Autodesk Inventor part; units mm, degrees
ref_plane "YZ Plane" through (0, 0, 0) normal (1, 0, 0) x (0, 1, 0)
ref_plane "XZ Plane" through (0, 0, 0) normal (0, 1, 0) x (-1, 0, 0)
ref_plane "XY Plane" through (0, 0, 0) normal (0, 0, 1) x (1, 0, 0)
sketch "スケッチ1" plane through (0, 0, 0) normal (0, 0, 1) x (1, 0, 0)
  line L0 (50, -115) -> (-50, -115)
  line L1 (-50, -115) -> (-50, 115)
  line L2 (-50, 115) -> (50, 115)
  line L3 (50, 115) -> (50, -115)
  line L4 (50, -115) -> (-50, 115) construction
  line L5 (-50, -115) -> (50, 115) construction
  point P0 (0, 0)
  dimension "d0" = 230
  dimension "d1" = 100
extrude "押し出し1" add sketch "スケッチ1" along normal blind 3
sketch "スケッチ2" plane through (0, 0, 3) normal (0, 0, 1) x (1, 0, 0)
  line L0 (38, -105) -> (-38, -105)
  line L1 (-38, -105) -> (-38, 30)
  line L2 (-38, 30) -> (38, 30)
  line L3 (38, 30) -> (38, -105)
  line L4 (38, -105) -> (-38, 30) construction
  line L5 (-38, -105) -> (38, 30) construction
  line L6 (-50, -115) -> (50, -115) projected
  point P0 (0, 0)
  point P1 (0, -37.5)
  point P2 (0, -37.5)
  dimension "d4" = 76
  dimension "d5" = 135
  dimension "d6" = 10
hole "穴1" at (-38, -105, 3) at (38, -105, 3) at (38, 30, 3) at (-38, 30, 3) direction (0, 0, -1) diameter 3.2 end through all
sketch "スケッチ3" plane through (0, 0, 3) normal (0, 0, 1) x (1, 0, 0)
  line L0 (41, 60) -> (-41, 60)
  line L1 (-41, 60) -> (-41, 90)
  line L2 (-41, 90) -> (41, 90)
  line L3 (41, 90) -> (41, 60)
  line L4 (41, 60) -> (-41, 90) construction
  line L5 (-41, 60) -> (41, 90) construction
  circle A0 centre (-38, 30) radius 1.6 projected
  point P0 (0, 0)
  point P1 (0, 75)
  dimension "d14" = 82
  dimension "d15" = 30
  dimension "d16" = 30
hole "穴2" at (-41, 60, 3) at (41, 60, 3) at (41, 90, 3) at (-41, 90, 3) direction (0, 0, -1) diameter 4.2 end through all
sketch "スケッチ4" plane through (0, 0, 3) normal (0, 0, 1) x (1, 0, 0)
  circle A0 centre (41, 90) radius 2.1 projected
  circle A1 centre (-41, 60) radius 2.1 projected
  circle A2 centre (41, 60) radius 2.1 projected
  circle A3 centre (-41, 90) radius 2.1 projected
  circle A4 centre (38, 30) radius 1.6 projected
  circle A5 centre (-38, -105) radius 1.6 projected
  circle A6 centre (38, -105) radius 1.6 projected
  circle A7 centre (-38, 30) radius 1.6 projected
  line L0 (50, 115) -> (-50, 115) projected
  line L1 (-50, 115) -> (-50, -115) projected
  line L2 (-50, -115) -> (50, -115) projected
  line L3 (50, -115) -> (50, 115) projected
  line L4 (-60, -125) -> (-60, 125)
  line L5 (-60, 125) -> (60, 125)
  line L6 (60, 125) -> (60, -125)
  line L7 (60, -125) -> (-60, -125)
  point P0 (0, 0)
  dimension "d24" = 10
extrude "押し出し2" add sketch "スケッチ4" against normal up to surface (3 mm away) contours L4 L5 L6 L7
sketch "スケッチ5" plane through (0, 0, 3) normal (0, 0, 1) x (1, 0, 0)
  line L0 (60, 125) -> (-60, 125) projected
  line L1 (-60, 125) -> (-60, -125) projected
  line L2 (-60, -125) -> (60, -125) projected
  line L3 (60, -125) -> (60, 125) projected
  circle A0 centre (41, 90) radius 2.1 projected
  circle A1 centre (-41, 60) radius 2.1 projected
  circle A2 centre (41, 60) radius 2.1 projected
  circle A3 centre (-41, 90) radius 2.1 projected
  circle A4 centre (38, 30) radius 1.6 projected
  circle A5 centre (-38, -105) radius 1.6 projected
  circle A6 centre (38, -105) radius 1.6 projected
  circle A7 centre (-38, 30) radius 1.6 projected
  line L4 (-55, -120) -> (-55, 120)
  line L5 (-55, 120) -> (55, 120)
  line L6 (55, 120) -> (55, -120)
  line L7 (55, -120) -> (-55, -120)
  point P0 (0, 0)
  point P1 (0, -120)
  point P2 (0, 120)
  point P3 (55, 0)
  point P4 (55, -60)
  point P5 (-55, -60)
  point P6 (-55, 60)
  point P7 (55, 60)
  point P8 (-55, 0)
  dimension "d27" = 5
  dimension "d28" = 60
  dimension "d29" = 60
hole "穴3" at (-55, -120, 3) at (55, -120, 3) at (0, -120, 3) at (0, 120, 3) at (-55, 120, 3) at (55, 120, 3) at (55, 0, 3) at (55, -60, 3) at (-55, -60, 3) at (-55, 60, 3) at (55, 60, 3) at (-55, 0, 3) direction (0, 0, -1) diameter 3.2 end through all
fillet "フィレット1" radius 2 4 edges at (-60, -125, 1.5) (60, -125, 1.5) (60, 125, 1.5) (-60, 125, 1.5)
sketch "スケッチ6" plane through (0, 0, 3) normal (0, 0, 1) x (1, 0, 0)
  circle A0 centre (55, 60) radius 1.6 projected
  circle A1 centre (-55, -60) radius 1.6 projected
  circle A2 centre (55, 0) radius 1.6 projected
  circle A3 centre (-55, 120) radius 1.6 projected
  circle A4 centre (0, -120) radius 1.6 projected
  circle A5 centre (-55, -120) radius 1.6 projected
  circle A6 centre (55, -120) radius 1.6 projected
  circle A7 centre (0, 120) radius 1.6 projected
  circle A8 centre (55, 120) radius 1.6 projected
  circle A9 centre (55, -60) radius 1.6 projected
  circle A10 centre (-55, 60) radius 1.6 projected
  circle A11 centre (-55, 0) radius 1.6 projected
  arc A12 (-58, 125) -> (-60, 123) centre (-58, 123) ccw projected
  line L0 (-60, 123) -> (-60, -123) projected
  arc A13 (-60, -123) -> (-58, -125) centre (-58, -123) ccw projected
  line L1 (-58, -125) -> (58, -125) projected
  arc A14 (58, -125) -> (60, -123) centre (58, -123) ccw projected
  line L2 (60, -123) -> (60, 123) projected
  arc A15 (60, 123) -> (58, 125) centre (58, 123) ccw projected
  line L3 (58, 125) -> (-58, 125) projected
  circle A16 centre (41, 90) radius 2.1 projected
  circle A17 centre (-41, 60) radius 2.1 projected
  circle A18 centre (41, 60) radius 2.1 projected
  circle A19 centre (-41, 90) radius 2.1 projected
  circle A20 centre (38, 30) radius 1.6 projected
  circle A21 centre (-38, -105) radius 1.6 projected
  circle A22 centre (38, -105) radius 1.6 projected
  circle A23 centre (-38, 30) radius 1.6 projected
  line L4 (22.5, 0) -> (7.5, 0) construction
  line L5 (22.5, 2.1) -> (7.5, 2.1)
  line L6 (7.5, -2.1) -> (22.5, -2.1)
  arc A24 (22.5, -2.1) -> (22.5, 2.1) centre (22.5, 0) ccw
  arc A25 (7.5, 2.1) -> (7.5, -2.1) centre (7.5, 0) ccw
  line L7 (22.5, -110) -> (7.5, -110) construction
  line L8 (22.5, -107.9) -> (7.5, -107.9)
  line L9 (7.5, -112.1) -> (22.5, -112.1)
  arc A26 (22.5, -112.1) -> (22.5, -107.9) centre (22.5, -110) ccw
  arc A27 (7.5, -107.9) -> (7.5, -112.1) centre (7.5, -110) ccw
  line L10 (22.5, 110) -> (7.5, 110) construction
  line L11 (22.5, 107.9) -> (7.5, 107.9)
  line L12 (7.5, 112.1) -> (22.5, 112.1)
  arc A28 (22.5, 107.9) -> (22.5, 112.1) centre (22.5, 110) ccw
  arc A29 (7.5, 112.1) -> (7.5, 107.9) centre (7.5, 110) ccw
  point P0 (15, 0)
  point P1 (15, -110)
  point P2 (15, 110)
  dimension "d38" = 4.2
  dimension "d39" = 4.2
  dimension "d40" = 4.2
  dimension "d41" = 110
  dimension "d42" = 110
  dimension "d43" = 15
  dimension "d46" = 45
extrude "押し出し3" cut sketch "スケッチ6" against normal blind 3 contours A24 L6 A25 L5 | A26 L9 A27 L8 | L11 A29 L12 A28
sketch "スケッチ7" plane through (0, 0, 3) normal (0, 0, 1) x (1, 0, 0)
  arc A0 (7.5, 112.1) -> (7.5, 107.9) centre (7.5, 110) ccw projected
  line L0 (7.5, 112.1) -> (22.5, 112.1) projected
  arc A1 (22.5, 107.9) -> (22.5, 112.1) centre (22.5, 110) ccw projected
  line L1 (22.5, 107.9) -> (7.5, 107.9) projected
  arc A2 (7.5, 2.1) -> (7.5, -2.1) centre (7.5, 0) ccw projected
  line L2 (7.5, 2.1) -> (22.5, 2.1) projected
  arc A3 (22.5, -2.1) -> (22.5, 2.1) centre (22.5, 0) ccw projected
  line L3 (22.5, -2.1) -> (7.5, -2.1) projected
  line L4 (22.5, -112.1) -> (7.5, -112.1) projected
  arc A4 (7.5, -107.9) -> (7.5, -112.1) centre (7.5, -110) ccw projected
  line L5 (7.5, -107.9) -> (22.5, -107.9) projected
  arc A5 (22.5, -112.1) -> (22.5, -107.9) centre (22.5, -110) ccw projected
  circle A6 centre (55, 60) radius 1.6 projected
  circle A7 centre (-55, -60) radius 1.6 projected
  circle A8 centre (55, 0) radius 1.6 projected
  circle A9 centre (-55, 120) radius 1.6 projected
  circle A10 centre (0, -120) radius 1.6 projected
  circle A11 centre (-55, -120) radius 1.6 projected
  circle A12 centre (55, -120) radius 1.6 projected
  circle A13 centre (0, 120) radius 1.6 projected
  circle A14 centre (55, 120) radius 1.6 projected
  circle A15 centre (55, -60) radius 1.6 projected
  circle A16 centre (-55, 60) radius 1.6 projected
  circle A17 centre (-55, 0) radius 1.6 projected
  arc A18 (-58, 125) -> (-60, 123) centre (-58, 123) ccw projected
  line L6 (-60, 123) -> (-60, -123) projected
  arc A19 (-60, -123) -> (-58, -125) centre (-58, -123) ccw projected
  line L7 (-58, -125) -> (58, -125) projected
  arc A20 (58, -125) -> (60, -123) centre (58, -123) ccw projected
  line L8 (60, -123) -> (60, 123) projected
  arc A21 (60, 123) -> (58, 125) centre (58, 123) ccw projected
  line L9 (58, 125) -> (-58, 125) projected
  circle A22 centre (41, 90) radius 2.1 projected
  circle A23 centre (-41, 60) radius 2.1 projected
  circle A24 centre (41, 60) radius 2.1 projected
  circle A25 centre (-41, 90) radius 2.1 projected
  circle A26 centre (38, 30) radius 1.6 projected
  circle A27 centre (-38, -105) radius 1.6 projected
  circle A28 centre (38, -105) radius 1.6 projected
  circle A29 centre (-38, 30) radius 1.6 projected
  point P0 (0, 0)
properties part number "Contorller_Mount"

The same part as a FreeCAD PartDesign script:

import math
import FreeCAD as App
import Part
import Sketcher

V = App.Vector


def edges_at(feature, points):
    """Names of the edges that pass closest to the given points."""
    edges = feature.Shape.Edges
    near = lambda p: min(range(len(edges)), key=lambda i: edges[i].distToShape(Part.Vertex(*p))[0])
    return sorted({f"Edge{near(p) + 1}" for p in points})

doc = App.newDocument("Part")
params = doc.addObject("Spreadsheet::Sheet", "Params")
for row, (alias, value) in enumerate([
    ("sketch1_width", "100 mm"),
    ("sketch1_height", "230 mm"),
    ("pad1_length", "3 mm"),
    ("sketch2_diameter", "3.2 mm"),
    ("hole_diameter", "3.2 mm"),
    ("sketch3_diameter", "4.2 mm"),
    ("hole2_diameter", "4.2 mm"),
    ("sketch4_width", "120 mm"),
    ("sketch4_height", "250 mm"),
    ("pad2_length", "3 mm"),
    ("sketch5_diameter", "3.2 mm"),
    ("hole3_diameter", "3.2 mm"),
    ("fillet_radius", "2 mm"),
    ("sketch6_radius", "2.1 mm"),
    ("sketch6_width", "15 mm"),
    ("pocket1_length", "3 mm"),
], start=1):
    params.set(f"A{row}", alias)
    params.set(f"B{row}", "=" + value)
    params.setAlias(f"B{row}", alias)

body = doc.addObject("PartDesign::Body", "Body")

sketch1 = body.newObject("Sketcher::SketchObject", "Sketch")
sketch1.AttachmentSupport = (doc.getObject("XY_Plane"), [""])
sketch1.MapMode = "FlatFace"
sketch1.addGeometry(Part.LineSegment(V(-50, -115, 0), V(50, -115, 0)), False)
sketch1.addGeometry(Part.LineSegment(V(50, -115, 0), V(50, 115, 0)), False)
sketch1.addGeometry(Part.LineSegment(V(50, 115, 0), V(-50, 115, 0)), False)
sketch1.addGeometry(Part.LineSegment(V(-50, 115, 0), V(-50, -115, 0)), False)
sketch1.addConstraint(Sketcher.Constraint("Coincident", 0, 2, 1, 1))
sketch1.addConstraint(Sketcher.Constraint("Coincident", 1, 2, 2, 1))
sketch1.addConstraint(Sketcher.Constraint("Coincident", 2, 2, 3, 1))
sketch1.addConstraint(Sketcher.Constraint("Coincident", 3, 2, 0, 1))
sketch1.addConstraint(Sketcher.Constraint("Horizontal", 0))
sketch1.addConstraint(Sketcher.Constraint("Vertical", 1))
sketch1.addConstraint(Sketcher.Constraint("Horizontal", 2))
sketch1.addConstraint(Sketcher.Constraint("Vertical", 3))
sketch1.addConstraint(Sketcher.Constraint("Symmetric", 0, 2, 2, 2, -1, 1))
sketch1.addConstraint(Sketcher.Constraint("DistanceX", 0, 1, 0, 2, 100.0))
sketch1.addConstraint(Sketcher.Constraint("DistanceY", 1, 1, 1, 2, 230.0))
sketch1.setExpression("Constraints[9]", "Params.sketch1_width")
sketch1.setExpression("Constraints[10]", "Params.sketch1_height")
pad1 = body.newObject("PartDesign::Pad", "Pad")
pad1.Profile = sketch1
pad1.setExpression("Length", "Params.pad1_length")

sketch2 = body.newObject("Sketcher::SketchObject", "Sketch001")
sketch2.AttachmentSupport = (doc.getObject("XY_Plane"), [""])
sketch2.MapMode = "FlatFace"
sketch2.AttachmentOffset = App.Placement(V(0, 0, 3), App.Rotation())
sketch2.addGeometry(Part.Circle(V(-38, -105, 0), V(0, 0, 1), 1.6), False)
sketch2.addGeometry(Part.Circle(V(38, -105, 0), V(0, 0, 1), 1.6), False)
sketch2.addGeometry(Part.Circle(V(38, 30, 0), V(0, 0, 1), 1.6), False)
sketch2.addGeometry(Part.Circle(V(-38, 30, 0), V(0, 0, 1), 1.6), False)
sketch2.addConstraint(Sketcher.Constraint("Equal", 0, 1))
sketch2.addConstraint(Sketcher.Constraint("Equal", 1, 2))
sketch2.addConstraint(Sketcher.Constraint("Equal", 2, 3))
sketch2.addConstraint(Sketcher.Constraint("Symmetric", 0, 3, 1, 3, -2))
sketch2.addConstraint(Sketcher.Constraint("Symmetric", 2, 3, 3, 3, -2))
sketch2.addConstraint(Sketcher.Constraint("Vertical", 1, 3, 2, 3))
sketch2.addConstraint(Sketcher.Constraint("Diameter", 0, 3.2))
sketch2.addConstraint(Sketcher.Constraint("DistanceX", 0, 3, -1, 1, 38.0))
sketch2.addConstraint(Sketcher.Constraint("DistanceY", 0, 3, -1, 1, 105.0))
sketch2.addConstraint(Sketcher.Constraint("DistanceY", -1, 1, 2, 3, 30.0))
sketch2.setExpression("Constraints[6]", "Params.sketch2_diameter")
doc.recompute()
hole = body.newObject("PartDesign::Hole", "Hole")
hole.Profile = sketch2
hole.ThreadType = "None"
hole.setExpression("Diameter", "Params.hole_diameter")
hole.DepthType = "ThroughAll"

sketch3 = body.newObject("Sketcher::SketchObject", "Sketch002")
sketch3.AttachmentSupport = (doc.getObject("XY_Plane"), [""])
sketch3.MapMode = "FlatFace"
sketch3.AttachmentOffset = App.Placement(V(0, 0, 3), App.Rotation())
sketch3.addGeometry(Part.Circle(V(-41, 60, 0), V(0, 0, 1), 2.1), False)
sketch3.addGeometry(Part.Circle(V(41, 60, 0), V(0, 0, 1), 2.1), False)
sketch3.addGeometry(Part.Circle(V(41, 90, 0), V(0, 0, 1), 2.1), False)
sketch3.addGeometry(Part.Circle(V(-41, 90, 0), V(0, 0, 1), 2.1), False)
sketch3.addConstraint(Sketcher.Constraint("Equal", 0, 1))
sketch3.addConstraint(Sketcher.Constraint("Equal", 1, 2))
sketch3.addConstraint(Sketcher.Constraint("Equal", 2, 3))
sketch3.addConstraint(Sketcher.Constraint("Symmetric", 0, 3, 1, 3, -2))
sketch3.addConstraint(Sketcher.Constraint("Symmetric", 2, 3, 3, 3, -2))
sketch3.addConstraint(Sketcher.Constraint("Vertical", 1, 3, 2, 3))
sketch3.addConstraint(Sketcher.Constraint("Diameter", 0, 4.2))
sketch3.addConstraint(Sketcher.Constraint("DistanceX", 0, 3, -1, 1, 41.0))
sketch3.addConstraint(Sketcher.Constraint("DistanceY", -1, 1, 0, 3, 60.0))
sketch3.addConstraint(Sketcher.Constraint("DistanceY", -1, 1, 2, 3, 90.0))
sketch3.setExpression("Constraints[6]", "Params.sketch3_diameter")
doc.recompute()
hole2 = body.newObject("PartDesign::Hole", "Hole001")
hole2.Profile = sketch3
hole2.ThreadType = "None"
hole2.setExpression("Diameter", "Params.hole2_diameter")
hole2.DepthType = "ThroughAll"

sketch4 = body.newObject("Sketcher::SketchObject", "Sketch003")
sketch4.AttachmentSupport = (doc.getObject("XY_Plane"), [""])
sketch4.MapMode = "FlatFace"
sketch4.AttachmentOffset = App.Placement(V(0, 0, 3), App.Rotation())
sketch4.addGeometry(Part.LineSegment(V(-60, 125, 0), V(-60, -125, 0)), False)
sketch4.addGeometry(Part.LineSegment(V(-60, -125, 0), V(60, -125, 0)), False)
sketch4.addGeometry(Part.LineSegment(V(60, -125, 0), V(60, 125, 0)), False)
sketch4.addGeometry(Part.LineSegment(V(60, 125, 0), V(-60, 125, 0)), False)
sketch4.addGeometry(Part.LineSegment(V(-50, 115, 0), V(50, 115, 0)), False)
sketch4.addGeometry(Part.LineSegment(V(50, 115, 0), V(50, -115, 0)), False)
sketch4.addGeometry(Part.LineSegment(V(50, -115, 0), V(-50, -115, 0)), False)
sketch4.addGeometry(Part.LineSegment(V(-50, -115, 0), V(-50, 115, 0)), False)
sketch4.addConstraint(Sketcher.Constraint("Coincident", 0, 2, 1, 1))
sketch4.addConstraint(Sketcher.Constraint("Coincident", 1, 2, 2, 1))
sketch4.addConstraint(Sketcher.Constraint("Coincident", 2, 2, 3, 1))
sketch4.addConstraint(Sketcher.Constraint("Coincident", 3, 2, 0, 1))
sketch4.addConstraint(Sketcher.Constraint("Coincident", 4, 2, 5, 1))
sketch4.addConstraint(Sketcher.Constraint("Coincident", 5, 2, 6, 1))
sketch4.addConstraint(Sketcher.Constraint("Coincident", 6, 2, 7, 1))
sketch4.addConstraint(Sketcher.Constraint("Coincident", 7, 2, 4, 1))
sketch4.addConstraint(Sketcher.Constraint("Vertical", 0))
sketch4.addConstraint(Sketcher.Constraint("Horizontal", 1))
sketch4.addConstraint(Sketcher.Constraint("Vertical", 2))
sketch4.addConstraint(Sketcher.Constraint("Horizontal", 3))
sketch4.addConstraint(Sketcher.Constraint("Horizontal", 4))
sketch4.addConstraint(Sketcher.Constraint("Vertical", 5))
sketch4.addConstraint(Sketcher.Constraint("Horizontal", 6))
sketch4.addConstraint(Sketcher.Constraint("Vertical", 7))
sketch4.addConstraint(Sketcher.Constraint("Symmetric", 0, 2, 2, 2, -1, 1))
sketch4.addConstraint(Sketcher.Constraint("Symmetric", 4, 2, 6, 2, -1, 1))
sketch4.addConstraint(Sketcher.Constraint("DistanceX", 4, 2, 2, 2, 10.0))
sketch4.addConstraint(Sketcher.Constraint("DistanceY", 4, 2, 2, 2, 10.0))
sketch4.addConstraint(Sketcher.Constraint("DistanceX", 1, 1, 1, 2, 120.0))
sketch4.addConstraint(Sketcher.Constraint("DistanceY", 0, 2, 0, 1, 250.0))
sketch4.setExpression("Constraints[20]", "Params.sketch4_width")
sketch4.setExpression("Constraints[21]", "Params.sketch4_height")
pad2 = body.newObject("PartDesign::Pad", "Pad001")
pad2.Profile = sketch4
pad2.setExpression("Length", "Params.pad2_length")
pad2.Reversed = True

sketch5 = body.newObject("Sketcher::SketchObject", "Sketch004")
sketch5.AttachmentSupport = (doc.getObject("XY_Plane"), [""])
sketch5.MapMode = "FlatFace"
sketch5.AttachmentOffset = App.Placement(V(0, 0, 3), App.Rotation())
sketch5.addGeometry(Part.Circle(V(-55, -120, 0), V(0, 0, 1), 1.6), False)
sketch5.addGeometry(Part.Circle(V(55, -120, 0), V(0, 0, 1), 1.6), False)
sketch5.addGeometry(Part.Circle(V(0, -120, 0), V(0, 0, 1), 1.6), False)
sketch5.addGeometry(Part.Circle(V(0, 120, 0), V(0, 0, 1), 1.6), False)
sketch5.addGeometry(Part.Circle(V(-55, 120, 0), V(0, 0, 1), 1.6), False)
sketch5.addGeometry(Part.Circle(V(55, 120, 0), V(0, 0, 1), 1.6), False)
sketch5.addGeometry(Part.Circle(V(55, 0, 0), V(0, 0, 1), 1.6), False)
sketch5.addGeometry(Part.Circle(V(55, -60, 0), V(0, 0, 1), 1.6), False)
sketch5.addGeometry(Part.Circle(V(-55, -60, 0), V(0, 0, 1), 1.6), False)
sketch5.addGeometry(Part.Circle(V(-55, 60, 0), V(0, 0, 1), 1.6), False)
sketch5.addGeometry(Part.Circle(V(55, 60, 0), V(0, 0, 1), 1.6), False)
sketch5.addGeometry(Part.Circle(V(-55, 0, 0), V(0, 0, 1), 1.6), False)
sketch5.addConstraint(Sketcher.Constraint("Equal", 0, 1))
sketch5.addConstraint(Sketcher.Constraint("Equal", 1, 2))
sketch5.addConstraint(Sketcher.Constraint("Equal", 2, 3))
sketch5.addConstraint(Sketcher.Constraint("Equal", 3, 4))
sketch5.addConstraint(Sketcher.Constraint("Equal", 4, 5))
sketch5.addConstraint(Sketcher.Constraint("Equal", 5, 6))
sketch5.addConstraint(Sketcher.Constraint("Equal", 6, 7))
sketch5.addConstraint(Sketcher.Constraint("Equal", 7, 8))
sketch5.addConstraint(Sketcher.Constraint("Equal", 8, 9))
sketch5.addConstraint(Sketcher.Constraint("Equal", 9, 10))
sketch5.addConstraint(Sketcher.Constraint("Equal", 10, 11))
sketch5.addConstraint(Sketcher.Constraint("Symmetric", 2, 3, 3, 3, -1, 1))
sketch5.addConstraint(Sketcher.Constraint("Symmetric", 1, 3, 4, 3, -1, 1))
sketch5.addConstraint(Sketcher.Constraint("Symmetric", 0, 3, 5, 3, -1, 1))
sketch5.addConstraint(Sketcher.Constraint("Symmetric", 7, 3, 9, 3, -1, 1))
sketch5.addConstraint(Sketcher.Constraint("Symmetric", 8, 3, 10, 3, -1, 1))
sketch5.addConstraint(Sketcher.Constraint("Symmetric", 6, 3, 11, 3, -1, 1))
sketch5.addConstraint(Sketcher.Constraint("Symmetric", 0, 3, 1, 3, -2))
sketch5.addConstraint(Sketcher.Constraint("Symmetric", 7, 3, 8, 3, -2))
sketch5.addConstraint(Sketcher.Constraint("PointOnObject", 2, 3, -2))
sketch5.addConstraint(Sketcher.Constraint("PointOnObject", 6, 3, -1))
sketch5.addConstraint(Sketcher.Constraint("Horizontal", 1, 3, 2, 3))
sketch5.addConstraint(Sketcher.Constraint("Vertical", 5, 3, 6, 3))
sketch5.addConstraint(Sketcher.Constraint("Vertical", 6, 3, 7, 3))
sketch5.addConstraint(Sketcher.Constraint("Diameter", 0, 3.2))
sketch5.addConstraint(Sketcher.Constraint("DistanceX", 0, 3, -1, 1, 55.0))
sketch5.addConstraint(Sketcher.Constraint("DistanceY", 0, 3, -1, 1, 120.0))
sketch5.addConstraint(Sketcher.Constraint("DistanceY", 7, 3, -1, 1, 60.0))
sketch5.setExpression("Constraints[24]", "Params.sketch5_diameter")
doc.recompute()
hole3 = body.newObject("PartDesign::Hole", "Hole002")
hole3.Profile = sketch5
hole3.ThreadType = "None"
hole3.setExpression("Diameter", "Params.hole3_diameter")
hole3.DepthType = "ThroughAll"
doc.recompute()

fillet = body.newObject("PartDesign::Fillet", "Fillet")
fillet.Base = (hole3, edges_at(hole3, [
    (-60, -125, 1.5),
    (60, -125, 1.5),
    (60, 125, 1.5),
    (-60, 125, 1.5),
]))
fillet.setExpression("Radius", "Params.fillet_radius")

sketch6 = body.newObject("Sketcher::SketchObject", "Sketch005")
sketch6.AttachmentSupport = (doc.getObject("XY_Plane"), [""])
sketch6.MapMode = "FlatFace"
sketch6.AttachmentOffset = App.Placement(V(0, 0, 3), App.Rotation())
sketch6.addGeometry(Part.ArcOfCircle(Part.Circle(V(22.5, 0, 0), V(0, 0, 1), 2.1), math.radians(-90), math.radians(90)), False)
sketch6.addGeometry(Part.LineSegment(V(22.5, 2.1, 0), V(7.5, 2.1, 0)), False)
sketch6.addGeometry(Part.ArcOfCircle(Part.Circle(V(7.5, 0, 0), V(0, 0, 1), 2.1), math.radians(90), math.radians(270)), False)
sketch6.addGeometry(Part.LineSegment(V(7.5, -2.1, 0), V(22.5, -2.1, 0)), False)
sketch6.addGeometry(Part.ArcOfCircle(Part.Circle(V(22.5, -110, 0), V(0, 0, 1), 2.1), math.radians(-90), math.radians(90)), False)
sketch6.addGeometry(Part.LineSegment(V(22.5, -107.9, 0), V(7.5, -107.9, 0)), False)
sketch6.addGeometry(Part.ArcOfCircle(Part.Circle(V(7.5, -110, 0), V(0, 0, 1), 2.1), math.radians(90), math.radians(270)), False)
sketch6.addGeometry(Part.LineSegment(V(7.5, -112.1, 0), V(22.5, -112.1, 0)), False)
sketch6.addGeometry(Part.LineSegment(V(7.5, 107.9, 0), V(22.5, 107.9, 0)), False)
sketch6.addGeometry(Part.ArcOfCircle(Part.Circle(V(22.5, 110, 0), V(0, 0, 1), 2.1), math.radians(-90), math.radians(90)), False)
sketch6.addGeometry(Part.LineSegment(V(22.5, 112.1, 0), V(7.5, 112.1, 0)), False)
sketch6.addGeometry(Part.ArcOfCircle(Part.Circle(V(7.5, 110, 0), V(0, 0, 1), 2.1), math.radians(90), math.radians(270)), False)
sketch6.addConstraint(Sketcher.Constraint("Tangent", 0, 2, 1, 1))
sketch6.addConstraint(Sketcher.Constraint("Tangent", 1, 2, 2, 1))
sketch6.addConstraint(Sketcher.Constraint("Tangent", 2, 2, 3, 1))
sketch6.addConstraint(Sketcher.Constraint("Tangent", 3, 2, 0, 1))
sketch6.addConstraint(Sketcher.Constraint("Tangent", 4, 2, 5, 1))
sketch6.addConstraint(Sketcher.Constraint("Tangent", 5, 2, 6, 1))
sketch6.addConstraint(Sketcher.Constraint("Tangent", 6, 2, 7, 1))
sketch6.addConstraint(Sketcher.Constraint("Tangent", 7, 2, 4, 1))
sketch6.addConstraint(Sketcher.Constraint("Tangent", 8, 2, 9, 1))
sketch6.addConstraint(Sketcher.Constraint("Tangent", 9, 2, 10, 1))
sketch6.addConstraint(Sketcher.Constraint("Tangent", 10, 2, 11, 1))
sketch6.addConstraint(Sketcher.Constraint("Tangent", 11, 2, 8, 1))
sketch6.addConstraint(Sketcher.Constraint("Horizontal", 1))
sketch6.addConstraint(Sketcher.Constraint("Horizontal", 3))
sketch6.addConstraint(Sketcher.Constraint("Horizontal", 5))
sketch6.addConstraint(Sketcher.Constraint("Horizontal", 7))
sketch6.addConstraint(Sketcher.Constraint("Horizontal", 8))
sketch6.addConstraint(Sketcher.Constraint("Horizontal", 10))
sketch6.addConstraint(Sketcher.Constraint("Equal", 2, 4))
sketch6.addConstraint(Sketcher.Constraint("Equal", 6, 9))
sketch6.addConstraint(Sketcher.Constraint("Symmetric", 4, 3, 9, 3, -1))
sketch6.addConstraint(Sketcher.Constraint("PointOnObject", 0, 3, -1))
sketch6.addConstraint(Sketcher.Constraint("Vertical", 0, 3, 4, 3))
sketch6.addConstraint(Sketcher.Constraint("Vertical", 2, 3, 6, 3))
sketch6.addConstraint(Sketcher.Constraint("Vertical", 6, 3, 11, 3))
sketch6.addConstraint(Sketcher.Constraint("Radius", 0, 2.1))
sketch6.addConstraint(Sketcher.Constraint("DistanceX", 1, 2, 1, 1, 15.0))
sketch6.addConstraint(Sketcher.Constraint("DistanceY", 4, 3, -1, 1, 110.0))
sketch6.addConstraint(Sketcher.Constraint("DistanceX", -1, 1, 0, 3, 22.5))
sketch6.setExpression("Constraints[25]", "Params.sketch6_radius")
sketch6.setExpression("Constraints[26]", "Params.sketch6_width")
pocket1 = body.newObject("PartDesign::Pocket", "Pocket")
pocket1.Profile = sketch6
pocket1.setExpression("Length", "Params.pocket1_length")

doc.recompute()
